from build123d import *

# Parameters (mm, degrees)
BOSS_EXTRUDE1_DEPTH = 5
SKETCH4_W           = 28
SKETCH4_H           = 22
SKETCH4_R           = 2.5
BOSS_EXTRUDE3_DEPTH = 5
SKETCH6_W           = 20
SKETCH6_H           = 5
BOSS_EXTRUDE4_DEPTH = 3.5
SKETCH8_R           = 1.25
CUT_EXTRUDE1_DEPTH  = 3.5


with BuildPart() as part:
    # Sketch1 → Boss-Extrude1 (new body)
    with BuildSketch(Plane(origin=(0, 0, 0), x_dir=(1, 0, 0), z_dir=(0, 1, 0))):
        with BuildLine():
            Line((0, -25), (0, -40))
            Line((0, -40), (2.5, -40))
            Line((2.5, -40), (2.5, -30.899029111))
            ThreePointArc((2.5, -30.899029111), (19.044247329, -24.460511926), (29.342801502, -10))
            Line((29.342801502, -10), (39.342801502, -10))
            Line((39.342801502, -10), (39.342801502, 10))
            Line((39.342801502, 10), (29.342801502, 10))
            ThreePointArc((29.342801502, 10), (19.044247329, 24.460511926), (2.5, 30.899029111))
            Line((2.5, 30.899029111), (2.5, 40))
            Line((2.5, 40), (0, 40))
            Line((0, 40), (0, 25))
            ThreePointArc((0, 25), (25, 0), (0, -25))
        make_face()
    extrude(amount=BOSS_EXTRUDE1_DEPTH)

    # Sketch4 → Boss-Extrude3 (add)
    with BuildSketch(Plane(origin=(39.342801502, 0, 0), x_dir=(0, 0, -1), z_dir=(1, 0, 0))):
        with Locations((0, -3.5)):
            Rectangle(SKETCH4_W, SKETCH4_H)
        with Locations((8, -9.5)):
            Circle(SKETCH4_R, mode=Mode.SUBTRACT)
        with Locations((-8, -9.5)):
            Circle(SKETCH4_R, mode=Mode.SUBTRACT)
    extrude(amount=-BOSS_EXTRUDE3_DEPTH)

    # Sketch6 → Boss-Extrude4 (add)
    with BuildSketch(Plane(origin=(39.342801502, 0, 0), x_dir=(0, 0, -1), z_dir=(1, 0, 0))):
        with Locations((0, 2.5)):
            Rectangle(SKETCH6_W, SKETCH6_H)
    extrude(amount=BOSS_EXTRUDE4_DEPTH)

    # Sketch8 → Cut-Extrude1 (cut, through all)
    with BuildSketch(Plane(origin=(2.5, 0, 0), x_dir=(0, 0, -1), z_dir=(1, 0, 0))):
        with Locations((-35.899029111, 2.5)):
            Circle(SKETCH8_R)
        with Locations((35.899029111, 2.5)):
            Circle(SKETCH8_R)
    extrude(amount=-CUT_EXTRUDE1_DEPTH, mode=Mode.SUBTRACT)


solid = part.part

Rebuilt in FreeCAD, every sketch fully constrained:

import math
import FreeCAD as App
import Part
import Sketcher

V = App.Vector


def add_polygon(sketch, points):
    """Adds a closed chain of lines whose ends are joined by coincident constraints."""
    first, n = sketch.GeometryCount, len(points)
    for a, b in zip(points, points[1:] + points[:1]):
        sketch.addGeometry(Part.LineSegment(App.Vector(*a, 0), App.Vector(*b, 0)), False)
    for i in range(n):
        sketch.addConstraint(Sketcher.Constraint("Coincident", first + i, 2, first + (i + 1) % n, 1))

doc = App.newDocument("Part")
body = doc.addObject("PartDesign::Body", "Body")

# Sketch on XZ plane
sketch1 = body.newObject("Sketcher::SketchObject", "Sketch")
sketch1.AttachmentSupport = (doc.getObject("XZ_Plane"), [""])
sketch1.MapMode = "FlatFace"
sketch1.addGeometry(Part.LineSegment(V(0, 25, 0), V(0, 40, 0)), False)
sketch1.addGeometry(Part.LineSegment(V(0, 40, 0), V(2.5, 40, 0)), False)
sketch1.addGeometry(Part.LineSegment(V(2.5, 40, 0), V(2.5, 30.9, 0)), False)
sketch1.addGeometry(Part.ArcOfCircle(Part.Circle(V(0, 0, 0), V(0, 0, 1), 31), math.radians(19), math.radians(85)), False)
sketch1.addGeometry(Part.LineSegment(V(29.3, 10, 0), V(39.3, 10, 0)), False)
sketch1.addGeometry(Part.LineSegment(V(39.3, 10, 0), V(39.3, -10, 0)), False)
sketch1.addGeometry(Part.LineSegment(V(39.3, -10, 0), V(29.3, -10, 0)), False)
sketch1.addGeometry(Part.ArcOfCircle(Part.Circle(V(0, 0, 0), V(0, 0, 1), 31), math.radians(-85), math.radians(-19)), False)
sketch1.addGeometry(Part.LineSegment(V(2.5, -30.9, 0), V(2.5, -40, 0)), False)
sketch1.addGeometry(Part.LineSegment(V(2.5, -40, 0), V(0, -40, 0)), False)
sketch1.addGeometry(Part.LineSegment(V(0, -40, 0), V(0, -25, 0)), False)
sketch1.addGeometry(Part.ArcOfCircle(Part.Circle(V(0, 0, 0), V(0, 0, 1), 25), math.radians(-90), math.radians(90)), False)
sketch1.addConstraint(Sketcher.Constraint("Coincident", 0, 2, 1, 1))
sketch1.addConstraint(Sketcher.Constraint("Coincident", 1, 2, 2, 1))
sketch1.addConstraint(Sketcher.Constraint("Coincident", 2, 2, 3, 2))
sketch1.addConstraint(Sketcher.Constraint("Coincident", 3, 1, 4, 1))
sketch1.addConstraint(Sketcher.Constraint("Coincident", 4, 2, 5, 1))
sketch1.addConstraint(Sketcher.Constraint("Coincident", 5, 2, 6, 1))
sketch1.addConstraint(Sketcher.Constraint("Coincident", 6, 2, 7, 2))
sketch1.addConstraint(Sketcher.Constraint("Coincident", 7, 1, 8, 1))
sketch1.addConstraint(Sketcher.Constraint("Coincident", 8, 2, 9, 1))
sketch1.addConstraint(Sketcher.Constraint("Coincident", 9, 2, 10, 1))
sketch1.addConstraint(Sketcher.Constraint("Coincident", 10, 2, 11, 1))
sketch1.addConstraint(Sketcher.Constraint("Coincident", 11, 2, 0, 1))
sketch1.addConstraint(Sketcher.Constraint("Vertical", 0))
sketch1.addConstraint(Sketcher.Constraint("Horizontal", 1))
sketch1.addConstraint(Sketcher.Constraint("Vertical", 2))
sketch1.addConstraint(Sketcher.Constraint("Horizontal", 4))
sketch1.addConstraint(Sketcher.Constraint("Vertical", 5))
sketch1.addConstraint(Sketcher.Constraint("Horizontal", 6))
sketch1.addConstraint(Sketcher.Constraint("Vertical", 8))
sketch1.addConstraint(Sketcher.Constraint("Horizontal", 9))
sketch1.addConstraint(Sketcher.Constraint("Vertical", 10))
sketch1.addConstraint(Sketcher.Constraint("Coincident", 3, 3, -1, 1))
sketch1.addConstraint(Sketcher.Constraint("Coincident", 7, 3, -1, 1))
sketch1.addConstraint(Sketcher.Constraint("Coincident", 11, 3, -1, 1))
sketch1.addConstraint(Sketcher.Constraint("Equal", 3, 7))
sketch1.addConstraint(Sketcher.Constraint("Symmetric", 0, 2, 9, 2, -1, 1))
sketch1.addConstraint(Sketcher.Constraint("PointOnObject", 0, 2, -2))
sketch1.addConstraint(Sketcher.Constraint("Vertical", 3, 1, 6, 2))
sketch1.addConstraint(Sketcher.Constraint("Vertical", 2, 2, 7, 1))
sketch1.addConstraint(Sketcher.Constraint("Radius", 3, 31.0))
sketch1.addConstraint(Sketcher.Constraint("Radius", 11, 25.0))
sketch1.addConstraint(Sketcher.Constraint("DistanceX", 4, 1, 4, 2, 10.0))
sketch1.addConstraint(Sketcher.Constraint("DistanceY", 0, 1, 0, 2, 15.0))
sketch1.addConstraint(Sketcher.Constraint("DistanceY", 5, 2, 5, 1, 20.0))
sketch1.addConstraint(Sketcher.Constraint("DistanceX", 1, 1, 1, 2, 2.5))
pad1 = body.newObject("PartDesign::Pad", "Pad")
pad1.Profile = sketch1
pad1.Length = 5
pad1.Reversed = True

# Sketch on YZ plane
sketch2 = body.newObject("Sketcher::SketchObject", "Sketch001")
sketch2.AttachmentSupport = (doc.getObject("YZ_Plane"), [""])
sketch2.MapMode = "FlatFace"
sketch2.AttachmentOffset = App.Placement(V(0, 0, 39.342802), App.Rotation())
add_polygon(sketch2, [(7.5, 14), (-14.5, 14), (-14.5, -14), (7.5, -14)])  # lines 0-3
sketch2.addGeometry(Part.Circle(V(-9.5, 8, 0), V(0, 0, 1), 2.5), False)  # 4
sketch2.addGeometry(Part.Circle(V(-9.5, -8, 0), V(0, 0, 1), 2.5), False)  # 5
sketch2.addConstraint(Sketcher.Constraint("Horizontal", 0))
sketch2.addConstraint(Sketcher.Constraint("Vertical", 1))
sketch2.addConstraint(Sketcher.Constraint("Horizontal", 2))
sketch2.addConstraint(Sketcher.Constraint("Vertical", 3))
sketch2.addConstraint(Sketcher.Constraint("Equal", 4, 5))
sketch2.addConstraint(Sketcher.Constraint("Symmetric", 4, 3, 5, 3, -1))
sketch2.addConstraint(Sketcher.Constraint("Diameter", 4, 5.0))
sketch2.addConstraint(Sketcher.Constraint("DistanceX", 0, 2, 0, 1, 22.0))
sketch2.addConstraint(Sketcher.Constraint("DistanceY", 1, 2, 1, 1, 28.0))
sketch2.addConstraint(Sketcher.Constraint("DistanceY", -1, 1, 4, 3, 8.0))
sketch2.addConstraint(Sketcher.Constraint("DistanceY", -1, 1, 0, 2, 14.0))
sketch2.addConstraint(Sketcher.Constraint("DistanceX", 0, 2, 4, 3, 5.0))
sketch2.addConstraint(Sketcher.Constraint("DistanceX", 4, 3, -1, 1, 9.5))
pad2 = body.newObject("PartDesign::Pad", "Pad001")
pad2.Profile = sketch2
pad2.Length = 5
pad2.Reversed = True

# Sketch on YZ plane
sketch3 = body.newObject("Sketcher::SketchObject", "Sketch002")
sketch3.AttachmentSupport = (doc.getObject("YZ_Plane"), [""])
sketch3.MapMode = "FlatFace"
sketch3.AttachmentOffset = App.Placement(V(0, 0, 39.342802), App.Rotation())
add_polygon(sketch3, [(5, 10), (0, 10), (0, -10), (5, -10)])  # lines 0-3
sketch3.addConstraint(Sketcher.Constraint("Horizontal", 0))
sketch3.addConstraint(Sketcher.Constraint("Vertical", 1))
sketch3.addConstraint(Sketcher.Constraint("Horizontal", 2))
sketch3.addConstraint(Sketcher.Constraint("Vertical", 3))
sketch3.addConstraint(Sketcher.Constraint("Symmetric", 0, 2, 1, 2, -1, 1))
sketch3.addConstraint(Sketcher.Constraint("DistanceX", 0, 2, 0, 1, 5.0))
sketch3.addConstraint(Sketcher.Constraint("DistanceY", 1, 2, 1, 1, 20.0))
pad3 = body.newObject("PartDesign::Pad", "Pad002")
pad3.Profile = sketch3
pad3.Length = 3.5

# Sketch on YZ plane
sketch4 = body.newObject("Sketcher::SketchObject", "Sketch003")
sketch4.AttachmentSupport = (doc.getObject("YZ_Plane"), [""])
sketch4.MapMode = "FlatFace"
sketch4.AttachmentOffset = App.Placement(V(0, 0, 2.5), App.Rotation())
sketch4.addGeometry(Part.Circle(V(2.5, 35.9, 0), V(0, 0, 1), 1.2), False)
sketch4.addGeometry(Part.Circle(V(2.5, -35.9, 0), V(0, 0, 1), 1.2), False)
sketch4.addConstraint(Sketcher.Constraint("Equal", 0, 1))
sketch4.addConstraint(Sketcher.Constraint("Symmetric", 0, 3, 1, 3, -1))
sketch4.addConstraint(Sketcher.Constraint("Diameter", 0, 2.5))
sketch4.addConstraint(Sketcher.Constraint("DistanceX", -1, 1, 0, 3, 2.5))
sketch4.addConstraint(Sketcher.Constraint("DistanceY", -1, 1, 0, 3, 35.899029))
pocket1 = body.newObject("PartDesign::Pocket", "Pocket")
pocket1.Profile = sketch4
pocket1.Type = "ThroughAll"

doc.recompute()
